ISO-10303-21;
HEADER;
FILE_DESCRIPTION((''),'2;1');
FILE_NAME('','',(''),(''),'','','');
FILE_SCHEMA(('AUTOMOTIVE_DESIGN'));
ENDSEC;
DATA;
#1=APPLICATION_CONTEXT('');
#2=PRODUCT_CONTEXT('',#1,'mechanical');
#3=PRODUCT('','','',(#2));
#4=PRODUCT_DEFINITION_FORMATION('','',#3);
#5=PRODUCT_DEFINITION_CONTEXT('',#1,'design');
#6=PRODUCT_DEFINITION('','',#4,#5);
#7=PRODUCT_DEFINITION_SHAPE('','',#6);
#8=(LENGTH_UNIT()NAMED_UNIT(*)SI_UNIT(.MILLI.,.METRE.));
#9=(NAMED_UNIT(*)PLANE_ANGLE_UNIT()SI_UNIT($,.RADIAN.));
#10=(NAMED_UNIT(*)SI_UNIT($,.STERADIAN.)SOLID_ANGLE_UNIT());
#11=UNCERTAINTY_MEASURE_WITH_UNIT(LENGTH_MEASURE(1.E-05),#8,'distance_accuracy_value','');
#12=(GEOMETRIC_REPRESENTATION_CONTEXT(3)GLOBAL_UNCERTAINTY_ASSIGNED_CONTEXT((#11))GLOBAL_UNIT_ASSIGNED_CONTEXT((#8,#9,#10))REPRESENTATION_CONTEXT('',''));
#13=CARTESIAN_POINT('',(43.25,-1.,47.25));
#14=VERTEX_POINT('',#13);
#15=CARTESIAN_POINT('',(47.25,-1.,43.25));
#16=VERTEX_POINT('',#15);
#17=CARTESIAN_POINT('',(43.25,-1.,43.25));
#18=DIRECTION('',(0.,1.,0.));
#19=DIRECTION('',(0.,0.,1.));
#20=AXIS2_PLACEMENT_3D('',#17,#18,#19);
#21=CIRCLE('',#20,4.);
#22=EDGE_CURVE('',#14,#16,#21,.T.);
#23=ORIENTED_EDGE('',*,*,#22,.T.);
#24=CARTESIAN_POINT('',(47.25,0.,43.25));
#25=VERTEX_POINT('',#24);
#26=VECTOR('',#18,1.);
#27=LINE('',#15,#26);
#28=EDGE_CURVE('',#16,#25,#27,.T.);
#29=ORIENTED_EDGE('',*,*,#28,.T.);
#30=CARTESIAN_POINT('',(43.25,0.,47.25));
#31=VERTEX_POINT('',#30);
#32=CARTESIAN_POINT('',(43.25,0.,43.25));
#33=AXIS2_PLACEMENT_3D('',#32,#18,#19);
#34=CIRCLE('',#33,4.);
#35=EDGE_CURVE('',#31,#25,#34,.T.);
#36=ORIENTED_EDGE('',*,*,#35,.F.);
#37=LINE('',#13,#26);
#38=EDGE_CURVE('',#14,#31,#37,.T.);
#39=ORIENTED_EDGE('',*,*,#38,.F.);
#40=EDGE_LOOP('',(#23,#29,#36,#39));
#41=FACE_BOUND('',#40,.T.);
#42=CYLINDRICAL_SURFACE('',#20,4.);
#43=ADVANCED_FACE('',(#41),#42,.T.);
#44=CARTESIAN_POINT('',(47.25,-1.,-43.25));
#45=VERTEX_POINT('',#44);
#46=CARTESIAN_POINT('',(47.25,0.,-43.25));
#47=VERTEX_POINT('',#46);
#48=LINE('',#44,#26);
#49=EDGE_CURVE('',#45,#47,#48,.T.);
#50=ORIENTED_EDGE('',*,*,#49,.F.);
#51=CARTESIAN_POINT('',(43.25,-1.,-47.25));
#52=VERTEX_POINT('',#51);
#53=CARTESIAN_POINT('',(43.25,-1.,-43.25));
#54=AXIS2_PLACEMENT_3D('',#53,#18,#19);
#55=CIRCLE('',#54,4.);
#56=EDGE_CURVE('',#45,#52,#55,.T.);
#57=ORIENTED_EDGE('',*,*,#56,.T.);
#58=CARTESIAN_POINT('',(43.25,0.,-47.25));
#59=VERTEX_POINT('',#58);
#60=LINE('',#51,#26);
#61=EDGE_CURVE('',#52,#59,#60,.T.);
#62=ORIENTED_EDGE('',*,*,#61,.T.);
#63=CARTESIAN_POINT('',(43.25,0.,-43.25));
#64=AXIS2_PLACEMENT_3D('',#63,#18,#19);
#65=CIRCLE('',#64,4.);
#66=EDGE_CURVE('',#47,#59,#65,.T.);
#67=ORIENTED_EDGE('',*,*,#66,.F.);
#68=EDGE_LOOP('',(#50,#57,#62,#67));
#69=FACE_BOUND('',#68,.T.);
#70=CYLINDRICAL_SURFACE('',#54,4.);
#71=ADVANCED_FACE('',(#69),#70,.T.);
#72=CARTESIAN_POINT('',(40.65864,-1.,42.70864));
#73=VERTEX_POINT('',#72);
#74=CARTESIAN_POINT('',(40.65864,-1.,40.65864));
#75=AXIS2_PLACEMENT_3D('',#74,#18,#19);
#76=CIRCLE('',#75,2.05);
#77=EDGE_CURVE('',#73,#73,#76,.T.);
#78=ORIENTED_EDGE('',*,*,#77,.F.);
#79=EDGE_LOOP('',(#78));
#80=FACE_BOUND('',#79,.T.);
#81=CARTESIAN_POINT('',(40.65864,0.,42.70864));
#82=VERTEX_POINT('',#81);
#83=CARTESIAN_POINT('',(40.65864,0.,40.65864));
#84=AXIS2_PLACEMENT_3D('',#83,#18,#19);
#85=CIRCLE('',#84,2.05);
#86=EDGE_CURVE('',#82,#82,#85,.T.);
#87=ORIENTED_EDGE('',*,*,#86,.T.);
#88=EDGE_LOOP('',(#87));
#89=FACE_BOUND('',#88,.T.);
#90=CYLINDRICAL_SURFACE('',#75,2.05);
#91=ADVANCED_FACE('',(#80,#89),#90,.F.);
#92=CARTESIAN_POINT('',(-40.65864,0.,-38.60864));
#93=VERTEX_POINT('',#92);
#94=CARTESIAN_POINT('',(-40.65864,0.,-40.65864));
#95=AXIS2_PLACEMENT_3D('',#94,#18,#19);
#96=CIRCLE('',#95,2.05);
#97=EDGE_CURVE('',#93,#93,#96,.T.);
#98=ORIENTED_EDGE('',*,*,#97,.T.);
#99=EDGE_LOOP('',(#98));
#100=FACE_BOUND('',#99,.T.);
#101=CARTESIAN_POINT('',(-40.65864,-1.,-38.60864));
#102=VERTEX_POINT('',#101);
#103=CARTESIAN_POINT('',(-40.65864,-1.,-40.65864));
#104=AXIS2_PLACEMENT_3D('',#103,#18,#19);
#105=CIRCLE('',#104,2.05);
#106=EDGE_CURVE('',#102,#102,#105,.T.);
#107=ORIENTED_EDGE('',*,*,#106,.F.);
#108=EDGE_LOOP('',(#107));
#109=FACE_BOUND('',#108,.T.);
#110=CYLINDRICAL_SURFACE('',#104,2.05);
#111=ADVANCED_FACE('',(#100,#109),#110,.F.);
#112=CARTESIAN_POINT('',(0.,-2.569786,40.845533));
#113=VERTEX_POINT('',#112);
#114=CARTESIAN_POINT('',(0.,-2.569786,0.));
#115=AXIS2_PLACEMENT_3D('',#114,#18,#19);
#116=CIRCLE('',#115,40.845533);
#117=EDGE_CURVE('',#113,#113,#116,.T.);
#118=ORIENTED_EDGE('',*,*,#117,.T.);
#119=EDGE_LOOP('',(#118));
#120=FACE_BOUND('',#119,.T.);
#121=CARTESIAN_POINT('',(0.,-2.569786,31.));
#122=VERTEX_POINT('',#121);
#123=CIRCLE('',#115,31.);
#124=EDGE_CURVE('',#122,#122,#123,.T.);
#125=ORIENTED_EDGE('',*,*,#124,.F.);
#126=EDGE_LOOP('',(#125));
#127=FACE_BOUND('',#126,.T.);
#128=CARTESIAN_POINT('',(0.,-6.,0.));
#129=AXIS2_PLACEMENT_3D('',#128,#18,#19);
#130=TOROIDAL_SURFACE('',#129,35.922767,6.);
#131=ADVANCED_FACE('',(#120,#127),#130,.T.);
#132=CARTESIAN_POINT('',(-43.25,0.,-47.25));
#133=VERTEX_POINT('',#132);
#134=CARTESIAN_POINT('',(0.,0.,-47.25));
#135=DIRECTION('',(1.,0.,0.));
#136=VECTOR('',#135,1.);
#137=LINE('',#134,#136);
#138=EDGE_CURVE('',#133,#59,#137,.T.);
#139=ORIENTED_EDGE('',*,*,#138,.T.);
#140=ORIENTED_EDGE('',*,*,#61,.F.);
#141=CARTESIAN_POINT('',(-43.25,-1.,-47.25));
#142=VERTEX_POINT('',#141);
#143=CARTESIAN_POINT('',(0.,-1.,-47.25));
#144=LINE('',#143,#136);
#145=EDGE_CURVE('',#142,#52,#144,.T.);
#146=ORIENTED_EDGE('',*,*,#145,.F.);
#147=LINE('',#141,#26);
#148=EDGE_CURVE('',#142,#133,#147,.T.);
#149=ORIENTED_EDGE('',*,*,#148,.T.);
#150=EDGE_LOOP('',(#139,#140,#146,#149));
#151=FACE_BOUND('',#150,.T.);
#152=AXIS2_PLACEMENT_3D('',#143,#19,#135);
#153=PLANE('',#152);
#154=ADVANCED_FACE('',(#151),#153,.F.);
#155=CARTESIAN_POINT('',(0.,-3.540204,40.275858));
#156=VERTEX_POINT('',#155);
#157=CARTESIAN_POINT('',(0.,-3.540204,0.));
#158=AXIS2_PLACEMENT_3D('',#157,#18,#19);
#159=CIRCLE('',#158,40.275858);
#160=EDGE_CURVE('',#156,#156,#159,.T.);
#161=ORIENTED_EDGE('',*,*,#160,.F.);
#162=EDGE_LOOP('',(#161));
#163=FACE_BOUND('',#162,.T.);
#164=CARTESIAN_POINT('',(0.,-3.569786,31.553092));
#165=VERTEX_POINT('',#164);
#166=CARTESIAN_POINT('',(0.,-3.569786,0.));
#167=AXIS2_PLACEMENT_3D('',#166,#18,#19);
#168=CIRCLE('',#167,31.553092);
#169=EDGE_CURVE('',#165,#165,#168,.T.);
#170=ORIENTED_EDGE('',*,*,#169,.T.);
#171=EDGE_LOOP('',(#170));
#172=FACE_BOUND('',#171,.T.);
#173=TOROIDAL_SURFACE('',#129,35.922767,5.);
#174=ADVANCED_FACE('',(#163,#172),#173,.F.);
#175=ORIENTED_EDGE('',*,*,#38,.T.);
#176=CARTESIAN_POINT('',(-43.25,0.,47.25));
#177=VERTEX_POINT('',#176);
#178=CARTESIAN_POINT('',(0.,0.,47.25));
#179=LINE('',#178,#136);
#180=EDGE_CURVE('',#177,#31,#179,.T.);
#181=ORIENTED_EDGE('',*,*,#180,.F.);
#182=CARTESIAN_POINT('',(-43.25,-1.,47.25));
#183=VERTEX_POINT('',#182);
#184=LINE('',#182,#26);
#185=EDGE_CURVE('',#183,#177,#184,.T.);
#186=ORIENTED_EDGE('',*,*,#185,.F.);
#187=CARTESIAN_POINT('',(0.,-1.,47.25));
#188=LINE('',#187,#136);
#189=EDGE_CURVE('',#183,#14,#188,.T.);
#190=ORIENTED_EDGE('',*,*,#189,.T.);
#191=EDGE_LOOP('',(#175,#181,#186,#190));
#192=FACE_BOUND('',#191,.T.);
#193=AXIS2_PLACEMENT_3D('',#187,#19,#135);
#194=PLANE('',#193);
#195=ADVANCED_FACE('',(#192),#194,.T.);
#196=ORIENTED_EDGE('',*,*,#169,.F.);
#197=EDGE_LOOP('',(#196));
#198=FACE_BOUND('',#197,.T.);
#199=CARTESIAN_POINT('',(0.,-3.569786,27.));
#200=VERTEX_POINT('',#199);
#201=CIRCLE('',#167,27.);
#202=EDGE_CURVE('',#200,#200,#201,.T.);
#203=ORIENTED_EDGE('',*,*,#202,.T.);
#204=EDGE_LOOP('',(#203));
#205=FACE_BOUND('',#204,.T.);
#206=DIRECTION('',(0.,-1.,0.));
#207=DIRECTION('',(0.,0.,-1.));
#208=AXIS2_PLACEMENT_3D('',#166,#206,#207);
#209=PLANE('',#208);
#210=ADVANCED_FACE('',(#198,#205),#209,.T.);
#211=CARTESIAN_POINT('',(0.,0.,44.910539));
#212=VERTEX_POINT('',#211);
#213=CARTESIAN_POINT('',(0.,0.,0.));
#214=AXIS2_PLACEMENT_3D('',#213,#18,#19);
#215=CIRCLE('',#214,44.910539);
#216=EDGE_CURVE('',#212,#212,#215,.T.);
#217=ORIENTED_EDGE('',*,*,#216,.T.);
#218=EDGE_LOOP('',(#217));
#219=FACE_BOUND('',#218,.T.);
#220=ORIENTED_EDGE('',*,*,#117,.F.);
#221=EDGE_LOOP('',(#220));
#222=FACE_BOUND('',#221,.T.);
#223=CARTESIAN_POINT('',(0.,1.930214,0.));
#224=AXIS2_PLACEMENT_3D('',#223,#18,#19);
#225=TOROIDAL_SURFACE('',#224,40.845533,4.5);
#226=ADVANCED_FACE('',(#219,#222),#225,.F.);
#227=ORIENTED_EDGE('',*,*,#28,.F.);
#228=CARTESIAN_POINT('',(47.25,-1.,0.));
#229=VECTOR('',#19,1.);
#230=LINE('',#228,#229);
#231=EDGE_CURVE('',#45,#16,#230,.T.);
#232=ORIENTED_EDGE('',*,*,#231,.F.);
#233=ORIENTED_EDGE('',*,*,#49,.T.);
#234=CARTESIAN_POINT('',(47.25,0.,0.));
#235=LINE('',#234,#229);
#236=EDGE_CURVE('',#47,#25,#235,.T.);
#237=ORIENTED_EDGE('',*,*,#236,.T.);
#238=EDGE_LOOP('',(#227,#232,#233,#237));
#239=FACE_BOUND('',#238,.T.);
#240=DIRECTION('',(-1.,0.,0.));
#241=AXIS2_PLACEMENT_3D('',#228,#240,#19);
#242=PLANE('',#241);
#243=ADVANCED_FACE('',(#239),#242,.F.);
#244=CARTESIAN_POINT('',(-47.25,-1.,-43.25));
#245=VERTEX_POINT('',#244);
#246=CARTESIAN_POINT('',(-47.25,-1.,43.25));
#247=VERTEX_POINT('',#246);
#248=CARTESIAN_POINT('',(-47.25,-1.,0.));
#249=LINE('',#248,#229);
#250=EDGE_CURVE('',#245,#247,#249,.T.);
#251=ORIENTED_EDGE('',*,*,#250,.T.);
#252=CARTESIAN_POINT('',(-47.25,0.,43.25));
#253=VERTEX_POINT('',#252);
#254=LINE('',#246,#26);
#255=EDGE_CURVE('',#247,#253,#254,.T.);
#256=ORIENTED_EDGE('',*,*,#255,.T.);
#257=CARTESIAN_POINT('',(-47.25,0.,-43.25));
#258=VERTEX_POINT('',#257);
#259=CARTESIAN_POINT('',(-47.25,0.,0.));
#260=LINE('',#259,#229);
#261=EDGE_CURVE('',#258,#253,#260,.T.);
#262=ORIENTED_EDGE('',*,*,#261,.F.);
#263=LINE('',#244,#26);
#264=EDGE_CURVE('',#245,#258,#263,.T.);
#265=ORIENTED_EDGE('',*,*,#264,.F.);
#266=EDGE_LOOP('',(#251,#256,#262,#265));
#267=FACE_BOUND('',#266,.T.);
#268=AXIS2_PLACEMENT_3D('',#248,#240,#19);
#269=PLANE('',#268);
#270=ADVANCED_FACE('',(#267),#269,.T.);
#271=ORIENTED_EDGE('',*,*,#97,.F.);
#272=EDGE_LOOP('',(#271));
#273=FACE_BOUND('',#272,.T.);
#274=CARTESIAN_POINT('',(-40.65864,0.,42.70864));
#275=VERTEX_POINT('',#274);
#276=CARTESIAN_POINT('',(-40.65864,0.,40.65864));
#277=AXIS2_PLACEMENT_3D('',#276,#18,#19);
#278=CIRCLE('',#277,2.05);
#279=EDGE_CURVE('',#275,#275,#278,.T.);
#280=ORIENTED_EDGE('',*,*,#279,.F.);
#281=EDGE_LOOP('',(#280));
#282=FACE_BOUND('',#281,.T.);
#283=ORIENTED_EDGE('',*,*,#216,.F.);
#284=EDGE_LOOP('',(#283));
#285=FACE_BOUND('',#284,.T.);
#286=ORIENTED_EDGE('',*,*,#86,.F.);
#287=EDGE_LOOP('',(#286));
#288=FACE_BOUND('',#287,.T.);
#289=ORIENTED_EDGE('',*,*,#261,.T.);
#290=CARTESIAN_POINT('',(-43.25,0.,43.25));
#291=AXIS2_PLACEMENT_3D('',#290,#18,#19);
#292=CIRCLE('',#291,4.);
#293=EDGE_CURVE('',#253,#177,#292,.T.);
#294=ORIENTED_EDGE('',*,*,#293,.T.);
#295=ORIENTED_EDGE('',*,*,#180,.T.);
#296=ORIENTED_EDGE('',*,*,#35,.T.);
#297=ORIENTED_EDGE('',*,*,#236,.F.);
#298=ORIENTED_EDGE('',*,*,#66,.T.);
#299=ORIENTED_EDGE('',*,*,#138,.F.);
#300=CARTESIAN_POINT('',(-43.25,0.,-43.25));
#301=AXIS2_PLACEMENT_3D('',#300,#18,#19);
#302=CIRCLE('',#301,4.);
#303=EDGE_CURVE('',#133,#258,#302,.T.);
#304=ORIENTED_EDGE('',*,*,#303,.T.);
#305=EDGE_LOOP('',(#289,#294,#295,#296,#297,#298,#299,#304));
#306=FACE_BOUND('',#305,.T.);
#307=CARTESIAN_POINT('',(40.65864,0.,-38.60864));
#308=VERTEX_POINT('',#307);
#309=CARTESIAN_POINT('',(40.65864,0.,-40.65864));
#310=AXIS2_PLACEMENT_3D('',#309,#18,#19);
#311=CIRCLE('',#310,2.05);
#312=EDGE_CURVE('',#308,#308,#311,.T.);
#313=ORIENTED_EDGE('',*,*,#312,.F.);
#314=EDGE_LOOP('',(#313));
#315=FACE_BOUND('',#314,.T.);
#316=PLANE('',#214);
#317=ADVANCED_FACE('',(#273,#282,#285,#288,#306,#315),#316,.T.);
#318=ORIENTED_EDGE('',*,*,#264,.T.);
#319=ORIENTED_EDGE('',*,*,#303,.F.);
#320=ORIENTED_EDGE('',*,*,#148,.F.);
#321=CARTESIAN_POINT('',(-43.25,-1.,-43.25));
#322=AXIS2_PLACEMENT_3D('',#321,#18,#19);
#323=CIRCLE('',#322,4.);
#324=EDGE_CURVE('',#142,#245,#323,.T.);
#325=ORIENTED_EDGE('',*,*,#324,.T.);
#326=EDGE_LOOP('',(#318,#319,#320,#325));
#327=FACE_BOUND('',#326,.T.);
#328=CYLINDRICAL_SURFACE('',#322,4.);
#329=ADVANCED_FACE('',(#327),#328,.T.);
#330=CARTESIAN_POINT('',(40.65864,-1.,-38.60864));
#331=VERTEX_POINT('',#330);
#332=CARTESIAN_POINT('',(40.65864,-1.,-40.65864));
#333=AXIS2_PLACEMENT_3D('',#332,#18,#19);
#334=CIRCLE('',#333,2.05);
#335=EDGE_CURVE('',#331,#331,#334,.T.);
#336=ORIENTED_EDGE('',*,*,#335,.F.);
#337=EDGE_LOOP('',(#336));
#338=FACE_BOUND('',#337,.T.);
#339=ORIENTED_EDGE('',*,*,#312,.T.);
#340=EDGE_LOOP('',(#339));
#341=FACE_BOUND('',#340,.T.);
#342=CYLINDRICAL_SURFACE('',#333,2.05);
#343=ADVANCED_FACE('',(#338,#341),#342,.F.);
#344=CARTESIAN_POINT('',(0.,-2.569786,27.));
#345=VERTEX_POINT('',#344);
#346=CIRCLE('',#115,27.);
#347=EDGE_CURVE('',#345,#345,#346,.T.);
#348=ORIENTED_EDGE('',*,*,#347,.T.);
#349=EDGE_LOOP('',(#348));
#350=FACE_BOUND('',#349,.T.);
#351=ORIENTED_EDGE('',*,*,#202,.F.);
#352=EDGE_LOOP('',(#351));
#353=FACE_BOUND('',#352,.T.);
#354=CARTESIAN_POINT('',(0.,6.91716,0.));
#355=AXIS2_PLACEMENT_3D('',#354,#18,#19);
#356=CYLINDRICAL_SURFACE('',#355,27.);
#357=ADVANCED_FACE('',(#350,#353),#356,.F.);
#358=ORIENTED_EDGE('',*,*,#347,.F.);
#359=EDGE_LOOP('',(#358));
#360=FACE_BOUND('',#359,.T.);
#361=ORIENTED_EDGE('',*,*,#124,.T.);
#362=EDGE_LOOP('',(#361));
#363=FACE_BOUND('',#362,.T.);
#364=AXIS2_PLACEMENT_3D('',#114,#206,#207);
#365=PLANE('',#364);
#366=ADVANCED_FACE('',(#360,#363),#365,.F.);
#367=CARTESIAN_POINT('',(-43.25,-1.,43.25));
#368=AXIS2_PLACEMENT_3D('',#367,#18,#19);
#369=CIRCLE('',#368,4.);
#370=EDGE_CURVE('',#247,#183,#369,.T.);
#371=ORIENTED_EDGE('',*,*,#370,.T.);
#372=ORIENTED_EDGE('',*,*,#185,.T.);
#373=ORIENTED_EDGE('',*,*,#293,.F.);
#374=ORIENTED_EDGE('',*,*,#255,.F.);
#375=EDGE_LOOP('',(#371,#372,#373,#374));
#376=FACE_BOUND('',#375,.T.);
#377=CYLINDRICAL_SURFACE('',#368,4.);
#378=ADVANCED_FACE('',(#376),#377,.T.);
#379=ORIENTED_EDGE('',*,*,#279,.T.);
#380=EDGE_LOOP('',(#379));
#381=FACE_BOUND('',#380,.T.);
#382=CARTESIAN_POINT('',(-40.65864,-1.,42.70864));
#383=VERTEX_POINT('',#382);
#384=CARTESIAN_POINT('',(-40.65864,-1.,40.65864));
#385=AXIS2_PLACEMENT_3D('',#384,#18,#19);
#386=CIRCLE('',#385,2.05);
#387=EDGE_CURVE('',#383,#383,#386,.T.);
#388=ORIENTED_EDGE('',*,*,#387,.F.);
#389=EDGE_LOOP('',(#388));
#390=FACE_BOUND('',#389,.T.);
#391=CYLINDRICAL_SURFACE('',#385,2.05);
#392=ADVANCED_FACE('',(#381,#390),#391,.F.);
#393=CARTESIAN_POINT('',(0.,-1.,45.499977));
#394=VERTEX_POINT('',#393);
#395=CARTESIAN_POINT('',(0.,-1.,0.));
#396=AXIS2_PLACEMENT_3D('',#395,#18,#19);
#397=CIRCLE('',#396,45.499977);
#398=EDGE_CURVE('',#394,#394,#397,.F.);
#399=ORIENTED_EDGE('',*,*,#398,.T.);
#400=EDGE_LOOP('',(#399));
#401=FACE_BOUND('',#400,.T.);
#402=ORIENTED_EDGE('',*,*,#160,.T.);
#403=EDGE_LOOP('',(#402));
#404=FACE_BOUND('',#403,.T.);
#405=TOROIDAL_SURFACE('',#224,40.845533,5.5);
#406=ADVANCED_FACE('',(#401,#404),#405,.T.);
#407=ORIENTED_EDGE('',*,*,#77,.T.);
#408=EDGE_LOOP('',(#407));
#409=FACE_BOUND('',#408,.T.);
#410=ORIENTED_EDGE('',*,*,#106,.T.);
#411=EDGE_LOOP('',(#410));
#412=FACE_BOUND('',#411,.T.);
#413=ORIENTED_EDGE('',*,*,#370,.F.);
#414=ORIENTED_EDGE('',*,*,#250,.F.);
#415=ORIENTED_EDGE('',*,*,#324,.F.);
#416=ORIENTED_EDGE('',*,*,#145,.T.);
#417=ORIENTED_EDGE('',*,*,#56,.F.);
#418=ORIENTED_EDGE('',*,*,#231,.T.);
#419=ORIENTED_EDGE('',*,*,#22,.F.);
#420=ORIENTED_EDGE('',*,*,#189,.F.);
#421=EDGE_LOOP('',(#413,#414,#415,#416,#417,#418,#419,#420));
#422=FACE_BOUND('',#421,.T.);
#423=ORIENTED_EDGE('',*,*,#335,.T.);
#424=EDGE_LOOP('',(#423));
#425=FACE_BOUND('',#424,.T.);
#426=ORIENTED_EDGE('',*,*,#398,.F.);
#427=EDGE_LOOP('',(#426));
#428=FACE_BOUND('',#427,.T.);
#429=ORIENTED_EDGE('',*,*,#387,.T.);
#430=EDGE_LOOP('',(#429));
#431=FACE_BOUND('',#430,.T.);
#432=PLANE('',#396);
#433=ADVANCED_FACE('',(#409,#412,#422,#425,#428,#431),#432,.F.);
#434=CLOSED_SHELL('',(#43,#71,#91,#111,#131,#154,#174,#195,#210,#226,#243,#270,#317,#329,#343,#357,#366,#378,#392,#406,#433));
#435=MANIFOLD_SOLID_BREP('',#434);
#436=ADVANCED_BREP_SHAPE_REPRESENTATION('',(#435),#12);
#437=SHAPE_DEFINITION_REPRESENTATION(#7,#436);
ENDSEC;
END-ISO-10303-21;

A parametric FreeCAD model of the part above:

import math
import FreeCAD as App
import Part
import Sketcher

V = App.Vector
Q = App.Units.Quantity

doc = App.newDocument("Part")
body = doc.addObject("PartDesign::Body", "Body")

sketch1 = body.newObject("Sketcher::SketchObject", "Sketch")
sketch1.AttachmentSupport = (doc.getObject("XY_Plane"), [""])
sketch1.MapMode = "FlatFace"
sketch1.addGeometry([
    Part.ArcOfCircle(Part.Circle(V(-40.8, 1.9, 0), V(0, 0, 1), 5.5), math.radians(-155), math.radians(-84)),
    Part.ArcOfCircle(Part.Circle(V(-35.9, -6, 0), V(0, 0, 1), 5), math.radians(29), math.radians(151)),
    Part.LineSegment(V(-31.6, -3.6, 0), V(-27, -3.6, 0)),
    Part.LineSegment(V(-27, -3.6, 0), V(-27, -2.6, 0)),
    Part.LineSegment(V(-27, -2.6, 0), V(-31, -2.6, 0)),
    Part.ArcOfCircle(Part.Circle(V(-35.9, -6, 0), V(0, 0, 1), 6), math.radians(35), math.radians(145)),
    Part.ArcOfCircle(Part.Circle(V(-40.8, 1.9, 0), V(0, 0, 1), 4.5), math.radians(-155), math.radians(-90)),
    Part.LineSegment(V(-44.9, 0, 0), V(-45.8, -0.4, 0)),
], False)
sketch1.addConstraint([
    Sketcher.Constraint("Coincident", 0, 2, 1, 2),
    Sketcher.Constraint("Coincident", 1, 1, 2, 1),
    Sketcher.Constraint("Coincident", 2, 2, 3, 1),
    Sketcher.Constraint("Coincident", 3, 2, 4, 1),
    Sketcher.Constraint("Coincident", 4, 2, 5, 1),
    Sketcher.Constraint("Coincident", 5, 2, 6, 2),
    Sketcher.Constraint("Coincident", 6, 1, 7, 1),
    Sketcher.Constraint("Coincident", 7, 2, 0, 1),
    Sketcher.Constraint("Horizontal", 2),
    Sketcher.Constraint("Vertical", 3),
    Sketcher.Constraint("Horizontal", 4),
    Sketcher.Constraint("Coincident", 5, 3, 1, 3),
    Sketcher.Constraint("Coincident", 6, 3, 0, 3),
    Sketcher.Constraint("PointOnObject", 6, 1, -1),
    Sketcher.Constraint("Horizontal", 4, 2, 5, 2),
    Sketcher.Constraint("Vertical", 6, 3, 5, 2),
    Sketcher.Constraint("Radius", 1, Q("5 mm")),
    Sketcher.Constraint("Radius", 5, Q("6 mm")),
    Sketcher.Constraint("Radius", 0, Q("5.5 mm")),
    Sketcher.Constraint("Radius", 6, Q("4.5 mm")),
    Sketcher.Constraint("DistanceX", 4, 2, 4, 1, Q("4 mm")),
    Sketcher.Constraint("DistanceY", 3, 1, 3, 2, Q("1 mm")),
    Sketcher.Constraint("DistanceY", 1, 3, -1, 1, Q("6 mm")),
    Sketcher.Constraint("DistanceX", 2, 2, -1, 1, Q("27 mm")),
    Sketcher.Constraint("DistanceX", 2, 1, 2, 2, Q("4.553092 mm")),
    Sketcher.Constraint("DistanceX", 7, 2, 5, 2, Q("4.968341 mm")),
])
revolution = body.newObject("PartDesign::Revolution", "Revolution")
revolution.Profile = sketch1
revolution.ReferenceAxis = (sketch1, ["V_Axis"])
revolution.Angle = 360

sketch2 = body.newObject("Sketcher::SketchObject", "Sketch001")
sketch2.AttachmentSupport = (doc.getObject("XZ_Plane"), [""])
sketch2.MapMode = "FlatFace"
sketch2.addGeometry([
    Part.LineSegment(V(43.2, -47.2, 0), V(-43.2, -47.2, 0)),
    Part.ArcOfCircle(Part.Circle(V(-43.3, -43.3, 0), V(0, 0, 1), 4), math.radians(180), math.radians(270)),
    Part.LineSegment(V(-47.2, -43.2, 0), V(-47.2, 43.2, 0)),
    Part.ArcOfCircle(Part.Circle(V(-43.3, 43.3, 0), V(0, 0, 1), 4), math.radians(90), math.radians(180)),
    Part.LineSegment(V(-43.2, 47.2, 0), V(43.2, 47.2, 0)),
    Part.ArcOfCircle(Part.Circle(V(43.3, 43.3, 0), V(0, 0, 1), 4), math.radians(0), math.radians(90)),
    Part.LineSegment(V(47.2, 43.2, 0), V(47.2, -43.2, 0)),
    Part.ArcOfCircle(Part.Circle(V(43.3, -43.3, 0), V(0, 0, 1), 4), math.radians(-90), math.radians(0)),
    Part.Circle(V(-40.7, 40.7, 0), V(0, 0, 1), 2),
    Part.Circle(V(40.7, 40.7, 0), V(0, 0, 1), 2),
    Part.Circle(V(-40.7, -40.7, 0), V(0, 0, 1), 2),
    Part.Circle(V(0, 0, 0), V(0, 0, 1), 44.9),
    Part.Circle(V(40.7, -40.7, 0), V(0, 0, 1), 2),
], False)
sketch2.addConstraint([
    Sketcher.Constraint("Tangent", 0, 2, 1, 2),
    Sketcher.Constraint("Tangent", 1, 1, 2, 1),
    Sketcher.Constraint("Tangent", 2, 2, 3, 2),
    Sketcher.Constraint("Tangent", 3, 1, 4, 1),
    Sketcher.Constraint("Tangent", 4, 2, 5, 2),
    Sketcher.Constraint("Tangent", 5, 1, 6, 1),
    Sketcher.Constraint("Tangent", 6, 2, 7, 2),
    Sketcher.Constraint("Tangent", 7, 1, 0, 1),
    Sketcher.Constraint("Horizontal", 0),
    Sketcher.Constraint("Vertical", 2),
    Sketcher.Constraint("Horizontal", 4),
    Sketcher.Constraint("Vertical", 6),
    Sketcher.Constraint("Coincident", 11, 3, -1, 1),
    Sketcher.Constraint("Equal", 1, 3),
    Sketcher.Constraint("Equal", 3, 5),
    Sketcher.Constraint("Equal", 5, 7),
    Sketcher.Constraint("Equal", 8, 9),
    Sketcher.Constraint("Equal", 9, 10),
    Sketcher.Constraint("Equal", 10, 12),
    Sketcher.Constraint("Symmetric", 1, 3, 5, 3, -1, 1),
    Sketcher.Constraint("Symmetric", 9, 3, 10, 3, -1, 1),
    Sketcher.Constraint("Symmetric", 8, 3, 12, 3, -1, 1),
    Sketcher.Constraint("Symmetric", 8, 3, 9, 3, -2),
    Sketcher.Constraint("Equal", 4, 2),
    Sketcher.Constraint("Radius", 1, Q("4 mm")),
    Sketcher.Constraint("Diameter", 8, Q("4.1 mm")),
    Sketcher.Constraint("DistanceX", 0, 2, 0, 1, Q("86.5 mm")),
    Sketcher.Constraint("Diameter", 11, Q("89.821079 mm")),
    Sketcher.Constraint("DistanceX", 8, 3, -1, 1, Q("40.65864 mm")),
    Sketcher.Constraint("DistanceY", -1, 1, 8, 3, Q("40.65864 mm")),
])
pad1 = body.newObject("PartDesign::Pad", "Pad")
pad1.Profile = sketch2
pad1.Length = 1

doc.recompute()
